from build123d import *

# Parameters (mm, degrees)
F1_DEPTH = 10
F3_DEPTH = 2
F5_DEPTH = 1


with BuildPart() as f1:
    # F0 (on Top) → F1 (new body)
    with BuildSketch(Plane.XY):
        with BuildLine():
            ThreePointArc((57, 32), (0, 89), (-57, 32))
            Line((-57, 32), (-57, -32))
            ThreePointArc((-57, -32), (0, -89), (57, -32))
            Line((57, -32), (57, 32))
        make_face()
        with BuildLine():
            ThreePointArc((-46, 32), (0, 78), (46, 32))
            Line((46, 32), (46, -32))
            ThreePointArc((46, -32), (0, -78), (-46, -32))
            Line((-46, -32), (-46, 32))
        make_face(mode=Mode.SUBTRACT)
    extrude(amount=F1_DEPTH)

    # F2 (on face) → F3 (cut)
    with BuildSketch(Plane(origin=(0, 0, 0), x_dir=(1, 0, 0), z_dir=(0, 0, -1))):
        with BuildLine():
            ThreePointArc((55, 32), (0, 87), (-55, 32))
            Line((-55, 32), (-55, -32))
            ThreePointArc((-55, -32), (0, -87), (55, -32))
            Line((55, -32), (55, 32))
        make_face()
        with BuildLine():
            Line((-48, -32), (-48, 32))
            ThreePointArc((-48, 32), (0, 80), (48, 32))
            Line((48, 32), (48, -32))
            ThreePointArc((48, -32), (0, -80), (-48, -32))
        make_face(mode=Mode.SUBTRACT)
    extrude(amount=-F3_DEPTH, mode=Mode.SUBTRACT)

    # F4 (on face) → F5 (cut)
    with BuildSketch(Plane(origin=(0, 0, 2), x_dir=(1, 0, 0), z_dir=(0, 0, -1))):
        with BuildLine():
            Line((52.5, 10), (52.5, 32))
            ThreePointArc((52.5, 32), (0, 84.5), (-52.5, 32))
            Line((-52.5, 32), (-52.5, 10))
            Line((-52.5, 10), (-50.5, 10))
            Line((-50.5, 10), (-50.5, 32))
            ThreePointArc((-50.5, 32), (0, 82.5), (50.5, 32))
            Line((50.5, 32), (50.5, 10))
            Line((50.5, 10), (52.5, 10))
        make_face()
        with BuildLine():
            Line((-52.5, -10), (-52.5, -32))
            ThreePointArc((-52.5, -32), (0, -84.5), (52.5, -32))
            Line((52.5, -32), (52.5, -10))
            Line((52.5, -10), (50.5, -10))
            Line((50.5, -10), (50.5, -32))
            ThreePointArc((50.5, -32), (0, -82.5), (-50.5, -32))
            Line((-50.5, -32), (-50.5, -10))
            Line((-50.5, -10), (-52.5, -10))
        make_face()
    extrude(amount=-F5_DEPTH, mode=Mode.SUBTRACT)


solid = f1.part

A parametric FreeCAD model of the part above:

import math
import FreeCAD as App
import Part
import Sketcher
from FreeCAD import Vector

doc = App.newDocument("Part")
body = doc.addObject("PartDesign::Body", "Body")

# Sketch on XY plane
sketch1 = doc.addObject("Sketcher::SketchObject", "Sketch")
body.addObject(sketch1)
sketch1.AttachmentSupport = (doc.XY_Plane, [""])
sketch1.MapMode = "FlatFace"
sketch1.addGeometry([
    Part.ArcOfCircle(Part.Circle(Vector(0, 32, 0), Vector(0, 0, 1), 57), math.radians(0), math.radians(180)),  # 0
    Part.LineSegment(Vector(-57, 32, 0), Vector(-57, -32, 0)),  # 1
    Part.ArcOfCircle(Part.Circle(Vector(0, -32, 0), Vector(0, 0, 1), 57), math.radians(180), math.radians(360)),  # 2
    Part.LineSegment(Vector(57, -32, 0), Vector(57, 32, 0)),  # 3
    Part.LineSegment(Vector(-46, -32, 0), Vector(-46, 32, 0)),  # 4
    Part.ArcOfCircle(Part.Circle(Vector(0, 32, 0), Vector(0, 0, 1), 46), math.radians(0), math.radians(180)),  # 5
    Part.LineSegment(Vector(46, 32, 0), Vector(46, -32, 0)),  # 6
    Part.ArcOfCircle(Part.Circle(Vector(0, -32, 0), Vector(0, 0, 1), 46), math.radians(180), math.radians(360)),  # 7
], False)
sketch1.addConstraint([
    Sketcher.Constraint("Tangent", 0, 2, 1, 1),
    Sketcher.Constraint("Tangent", 1, 2, 2, 1),
    Sketcher.Constraint("Tangent", 2, 2, 3, 1),
    Sketcher.Constraint("Tangent", 3, 2, 0, 1),
    Sketcher.Constraint("Tangent", 4, 2, 5, 2),
    Sketcher.Constraint("Tangent", 5, 1, 6, 1),
    Sketcher.Constraint("Tangent", 6, 2, 7, 2),
    Sketcher.Constraint("Tangent", 7, 1, 4, 1),
    Sketcher.Constraint("Vertical", 1),
    Sketcher.Constraint("Vertical", 3),
    Sketcher.Constraint("Vertical", 4),
    Sketcher.Constraint("Vertical", 6),
    Sketcher.Constraint("Coincident", 5, 3, 0, 3),
    Sketcher.Constraint("Symmetric", 0, 3, 2, 3, -1, 1),
    Sketcher.Constraint("Horizontal", 7, 3, 1, 2),
    Sketcher.Constraint("Radius", 0, 57.0),
    Sketcher.Constraint("Radius", 5, 46.0),
    Sketcher.Constraint("DistanceY", 1, 2, 1, 1, 64.0),
])
pad1 = doc.addObject("PartDesign::Pad", "Pad")
body.addObject(pad1)
pad1.Profile = sketch1
pad1.Length = 10

# Sketch on XY plane
sketch2 = doc.addObject("Sketcher::SketchObject", "Sketch001")
body.addObject(sketch2)
sketch2.AttachmentSupport = (doc.XY_Plane, [""])
sketch2.MapMode = "FlatFace"
sketch2.addGeometry([
    Part.ArcOfCircle(Part.Circle(Vector(0, -32, 0), Vector(0, 0, 1), 55), math.radians(180), math.radians(360)),  # 0
    Part.LineSegment(Vector(-55, -32, 0), Vector(-55, 32, 0)),  # 1
    Part.ArcOfCircle(Part.Circle(Vector(0, 32, 0), Vector(0, 0, 1), 55), math.radians(0), math.radians(180)),  # 2
    Part.LineSegment(Vector(55, 32, 0), Vector(55, -32, 0)),  # 3
    Part.ArcOfCircle(Part.Circle(Vector(0, 32, 0), Vector(0, 0, 1), 48), math.radians(0), math.radians(180)),  # 4
    Part.LineSegment(Vector(-48, 32, 0), Vector(-48, -32, 0)),  # 5
    Part.ArcOfCircle(Part.Circle(Vector(0, -32, 0), Vector(0, 0, 1), 48), math.radians(180), math.radians(360)),  # 6
    Part.LineSegment(Vector(48, -32, 0), Vector(48, 32, 0)),  # 7
], False)
sketch2.addConstraint([
    Sketcher.Constraint("Tangent", 0, 1, 1, 1),
    Sketcher.Constraint("Tangent", 1, 2, 2, 2),
    Sketcher.Constraint("Tangent", 2, 1, 3, 1),
    Sketcher.Constraint("Tangent", 3, 2, 0, 2),
    Sketcher.Constraint("Tangent", 4, 2, 5, 1),
    Sketcher.Constraint("Tangent", 5, 2, 6, 1),
    Sketcher.Constraint("Tangent", 6, 2, 7, 1),
    Sketcher.Constraint("Tangent", 7, 2, 4, 1),
    Sketcher.Constraint("Vertical", 1),
    Sketcher.Constraint("Vertical", 3),
    Sketcher.Constraint("Vertical", 5),
    Sketcher.Constraint("Vertical", 7),
    Sketcher.Constraint("Coincident", 4, 3, 2, 3),
    Sketcher.Constraint("Symmetric", 0, 3, 2, 3, -1, 1),
    Sketcher.Constraint("Horizontal", 6, 3, 0, 1),
    Sketcher.Constraint("Radius", 0, 55.0),
    Sketcher.Constraint("Radius", 4, 48.0),
    Sketcher.Constraint("DistanceY", 1, 1, 1, 2, 64.0),
])
pocket1 = doc.addObject("PartDesign::Pocket", "Pocket")
body.addObject(pocket1)
pocket1.Profile = sketch2
pocket1.Length = 2
pocket1.Reversed = True

# Sketch on XY plane
sketch3 = doc.addObject("Sketcher::SketchObject", "Sketch002")
body.addObject(sketch3)
sketch3.AttachmentSupport = (doc.XY_Plane, [""])
sketch3.MapMode = "FlatFace"
sketch3.AttachmentOffset = App.Placement(Vector(0, 0, 2), App.Rotation())
sketch3.addGeometry([
    Part.LineSegment(Vector(52.5, -10, 0), Vector(52.5, -32, 0)),  # 0
    Part.ArcOfCircle(Part.Circle(Vector(0, -32, 0), Vector(0, 0, 1), 52.5), math.radians(180), math.radians(360)),  # 1
    Part.LineSegment(Vector(-52.5, -32, 0), Vector(-52.5, -10, 0)),  # 2
    Part.LineSegment(Vector(-52.5, -10, 0), Vector(-50.5, -10, 0)),  # 3
    Part.LineSegment(Vector(-50.5, -10, 0), Vector(-50.5, -32, 0)),  # 4
    Part.ArcOfCircle(Part.Circle(Vector(0, -32, 0), Vector(0, 0, 1), 50.5), math.radians(180), math.radians(360)),  # 5
    Part.LineSegment(Vector(50.5, -32, 0), Vector(50.5, -10, 0)),  # 6
    Part.LineSegment(Vector(50.5, -10, 0), Vector(52.5, -10, 0)),  # 7
    Part.LineSegment(Vector(-52.5, 10, 0), Vector(-52.5, 32, 0)),  # 8
    Part.ArcOfCircle(Part.Circle(Vector(0, 32, 0), Vector(0, 0, 1), 52.5), math.radians(0), math.radians(180)),  # 9
    Part.LineSegment(Vector(52.5, 32, 0), Vector(52.5, 10, 0)),  # 10
    Part.LineSegment(Vector(52.5, 10, 0), Vector(50.5, 10, 0)),  # 11
    Part.LineSegment(Vector(50.5, 10, 0), Vector(50.5, 32, 0)),  # 12
    Part.ArcOfCircle(Part.Circle(Vector(0, 32, 0), Vector(0, 0, 1), 50.5), math.radians(0), math.radians(180)),  # 13
    Part.LineSegment(Vector(-50.5, 32, 0), Vector(-50.5, 10, 0)),  # 14
    Part.LineSegment(Vector(-50.5, 10, 0), Vector(-52.5, 10, 0)),  # 15
], False)
sketch3.addConstraint([
    Sketcher.Constraint("Tangent", 0, 2, 1, 2),
    Sketcher.Constraint("Tangent", 1, 1, 2, 1),
    Sketcher.Constraint("Coincident", 2, 2, 3, 1),
    Sketcher.Constraint("Coincident", 3, 2, 4, 1),
    Sketcher.Constraint("Tangent", 4, 2, 5, 1),
    Sketcher.Constraint("Tangent", 5, 2, 6, 1),
    Sketcher.Constraint("Coincident", 6, 2, 7, 1),
    Sketcher.Constraint("Coincident", 7, 2, 0, 1),
    Sketcher.Constraint("Tangent", 8, 2, 9, 2),
    Sketcher.Constraint("Tangent", 9, 1, 10, 1),
    Sketcher.Constraint("Coincident", 10, 2, 11, 1),
    Sketcher.Constraint("Coincident", 11, 2, 12, 1),
    Sketcher.Constraint("Tangent", 12, 2, 13, 1),
    Sketcher.Constraint("Tangent", 13, 2, 14, 1),
    Sketcher.Constraint("Coincident", 14, 2, 15, 1),
    Sketcher.Constraint("Coincident", 15, 2, 8, 1),
    Sketcher.Constraint("Vertical", 0),
    Sketcher.Constraint("Vertical", 2),
    Sketcher.Constraint("Horizontal", 3),
    Sketcher.Constraint("Vertical", 4),
    Sketcher.Constraint("Vertical", 6),
    Sketcher.Constraint("Horizontal", 7),
    Sketcher.Constraint("Vertical", 8),
    Sketcher.Constraint("Vertical", 10),
    Sketcher.Constraint("Horizontal", 11),
    Sketcher.Constraint("Vertical", 12),
    Sketcher.Constraint("Vertical", 14),
    Sketcher.Constraint("Horizontal", 15),
    Sketcher.Constraint("Coincident", 5, 3, 1, 3),
    Sketcher.Constraint("Coincident", 13, 3, 9, 3),
    Sketcher.Constraint("Equal", 1, 9),
    Sketcher.Constraint("Equal", 5, 13),
    Sketcher.Constraint("Symmetric", 1, 3, 9, 3, -1, 1),
    Sketcher.Constraint("Symmetric", 3, 2, 6, 2, -2),
    Sketcher.Constraint("Horizontal", 11, 2, 14, 2),
    Sketcher.Constraint("Equal", 6, 8),
    Sketcher.Constraint("Radius", 1, 52.5),
    Sketcher.Constraint("Radius", 5, 50.5),
    Sketcher.Constraint("DistanceY", 0, 2, 0, 1, 22.0),
    Sketcher.Constraint("DistanceY", 1, 3, -1, 1, 32.0),
])
pocket2 = doc.addObject("PartDesign::Pocket", "Pocket001")
body.addObject(pocket2)
pocket2.Profile = sketch3
pocket2.Length = 1
pocket2.Reversed = True

doc.recompute()
